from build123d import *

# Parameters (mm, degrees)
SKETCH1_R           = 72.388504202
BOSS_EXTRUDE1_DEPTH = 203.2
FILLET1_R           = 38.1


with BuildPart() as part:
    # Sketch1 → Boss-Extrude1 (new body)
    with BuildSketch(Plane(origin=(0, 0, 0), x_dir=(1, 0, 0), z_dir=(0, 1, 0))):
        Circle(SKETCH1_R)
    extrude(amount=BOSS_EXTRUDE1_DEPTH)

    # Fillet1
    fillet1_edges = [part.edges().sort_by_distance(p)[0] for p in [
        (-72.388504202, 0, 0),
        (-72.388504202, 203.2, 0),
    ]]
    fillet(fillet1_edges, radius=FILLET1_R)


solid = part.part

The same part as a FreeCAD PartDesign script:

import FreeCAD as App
import Part
import Sketcher


def edges_at(feature, points):
    """Names of the edges that pass closest to the given points."""
    edges = feature.Shape.Edges
    near = lambda p: min(range(len(edges)), key=lambda i: edges[i].distToShape(Part.Vertex(*p))[0])
    return sorted({f"Edge{near(p) + 1}" for p in points})

doc = App.newDocument("Part")
params = doc.addObject("Spreadsheet::Sheet", "Params")
for row, (alias, value) in enumerate([
    ("pad1_length", "8 in"),
    ("fillet_radius", "1.5 in"),
], start=1):
    params.set(f"A{row}", alias)
    params.set(f"B{row}", "=" + value)
    params.setAlias(f"B{row}", alias)

body = doc.addObject("PartDesign::Body", "Body")

sketch1 = doc.addObject("Sketcher::SketchObject", "Sketch")
body.addObject(sketch1)
sketch1.AttachmentSupport = (doc.XZ_Plane, [""])
sketch1.MapMode = "FlatFace"
sketch1.addGeometry(Part.Circle(App.Vector(0, 0, 0), App.Vector(0, 0, 1), 72), False)
sketch1.addConstraint(Sketcher.Constraint("Coincident", 0, 3, -1, 1))
sketch1.addConstraint(Sketcher.Constraint("Diameter", 0, 144.777008))
pad1 = doc.addObject("PartDesign::Pad", "Pad")
body.addObject(pad1)
pad1.Profile = sketch1
pad1.setExpression("Length", "Params.pad1_length")
pad1.Reversed = True
doc.recompute()

fillet = doc.addObject("PartDesign::Fillet", "Fillet")
body.addObject(fillet)
fillet.Base = (pad1, edges_at(pad1, [(-72.389, 0, 0), (-72.389, 203.2, 0)]))
fillet.setExpression("Radius", "Params.fillet_radius")

doc.recompute()
